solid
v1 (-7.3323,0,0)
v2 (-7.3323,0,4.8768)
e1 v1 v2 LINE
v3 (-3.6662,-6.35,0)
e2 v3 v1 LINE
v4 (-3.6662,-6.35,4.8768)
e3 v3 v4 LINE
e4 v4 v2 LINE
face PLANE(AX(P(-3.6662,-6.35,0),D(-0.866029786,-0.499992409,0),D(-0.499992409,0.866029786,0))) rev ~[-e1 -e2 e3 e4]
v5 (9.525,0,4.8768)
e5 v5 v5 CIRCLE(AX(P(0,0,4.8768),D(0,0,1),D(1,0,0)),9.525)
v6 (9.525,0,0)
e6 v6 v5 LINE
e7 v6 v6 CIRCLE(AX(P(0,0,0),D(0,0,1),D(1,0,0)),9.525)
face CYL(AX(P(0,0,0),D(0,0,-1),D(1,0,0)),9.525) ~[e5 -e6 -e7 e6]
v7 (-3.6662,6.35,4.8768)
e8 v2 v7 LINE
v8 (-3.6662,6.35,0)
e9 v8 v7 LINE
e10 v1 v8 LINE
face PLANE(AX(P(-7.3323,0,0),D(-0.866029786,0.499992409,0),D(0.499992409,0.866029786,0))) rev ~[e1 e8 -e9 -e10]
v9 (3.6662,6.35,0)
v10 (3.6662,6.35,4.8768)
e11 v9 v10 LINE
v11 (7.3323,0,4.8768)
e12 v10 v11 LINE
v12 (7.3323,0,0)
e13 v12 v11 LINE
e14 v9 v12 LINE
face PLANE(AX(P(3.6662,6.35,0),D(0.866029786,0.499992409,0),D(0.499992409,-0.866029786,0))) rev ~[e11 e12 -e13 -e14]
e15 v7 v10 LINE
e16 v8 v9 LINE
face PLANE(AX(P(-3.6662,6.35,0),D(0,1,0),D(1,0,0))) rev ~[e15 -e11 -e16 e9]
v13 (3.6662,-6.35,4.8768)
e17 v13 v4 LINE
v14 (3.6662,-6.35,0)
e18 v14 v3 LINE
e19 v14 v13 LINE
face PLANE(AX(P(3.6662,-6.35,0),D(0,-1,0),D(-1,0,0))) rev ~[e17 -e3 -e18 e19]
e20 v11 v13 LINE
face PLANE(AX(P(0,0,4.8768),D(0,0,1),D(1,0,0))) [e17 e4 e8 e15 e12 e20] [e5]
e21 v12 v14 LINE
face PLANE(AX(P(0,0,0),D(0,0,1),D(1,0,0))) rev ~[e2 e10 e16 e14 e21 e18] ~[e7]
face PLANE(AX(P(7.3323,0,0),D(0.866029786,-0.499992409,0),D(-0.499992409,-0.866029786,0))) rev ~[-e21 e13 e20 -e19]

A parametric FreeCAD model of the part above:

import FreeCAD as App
import Part
import Sketcher

V = App.Vector
Q = App.Units.Quantity


def add_polygon(sketch, points):
    """Adds a closed chain of lines whose ends are joined by coincident constraints."""
    first, n = sketch.GeometryCount, len(points)
    for a, b in zip(points, points[1:] + points[:1]):
        sketch.addGeometry(Part.LineSegment(App.Vector(*a, 0), App.Vector(*b, 0)), False)
    for i in range(n):
        sketch.addConstraint(Sketcher.Constraint("Coincident", first + i, 2, first + (i + 1) % n, 1))

doc = App.newDocument("Part")
body = doc.addObject("PartDesign::Body", "Body")

# Sketch on XY plane
sketch1 = body.newObject("Sketcher::SketchObject", "Sketch")
sketch1.AttachmentSupport = (doc.getObject("XY_Plane"), [""])
sketch1.MapMode = "FlatFace"
sketch1.addGeometry(Part.Circle(V(0, 0, 0), V(0, 0, 1), 10), False)  # 0
add_polygon(sketch1, [(-4, 6), (4, 6), (7, 0), (4, -6), (-4, -6), (-7, 0)])  # lines 1-6
sketch1.addConstraint([
    Sketcher.Constraint("Horizontal", 1),
    Sketcher.Constraint("Horizontal", 4),
    Sketcher.Constraint("Coincident", 0, 3, -1, 1),
    Sketcher.Constraint("Symmetric", 1, 2, 4, 2, -1, 1),
    Sketcher.Constraint("Symmetric", 2, 2, 5, 2, -1, 1),
    Sketcher.Constraint("PointOnObject", 2, 2, -1),
    Sketcher.Constraint("Parallel", 3, 6),
    Sketcher.Constraint("Vertical", 1, 2, 3, 2),
    Sketcher.Constraint("Diameter", 0, Q("0.75 in")),
    Sketcher.Constraint("DistanceY", 3, 2, 1, 2, Q("0.5 in")),
    Sketcher.Constraint("Angle", 2, Q("-60.0005 deg")),
    Sketcher.Constraint("DistanceX", 4, 2, 2, 2, Q("0.433 in")),
])
pad1 = body.newObject("PartDesign::Pad", "Pad")
pad1.Profile = sketch1
pad1.Length = Q("0.192 in")

doc.recompute()
